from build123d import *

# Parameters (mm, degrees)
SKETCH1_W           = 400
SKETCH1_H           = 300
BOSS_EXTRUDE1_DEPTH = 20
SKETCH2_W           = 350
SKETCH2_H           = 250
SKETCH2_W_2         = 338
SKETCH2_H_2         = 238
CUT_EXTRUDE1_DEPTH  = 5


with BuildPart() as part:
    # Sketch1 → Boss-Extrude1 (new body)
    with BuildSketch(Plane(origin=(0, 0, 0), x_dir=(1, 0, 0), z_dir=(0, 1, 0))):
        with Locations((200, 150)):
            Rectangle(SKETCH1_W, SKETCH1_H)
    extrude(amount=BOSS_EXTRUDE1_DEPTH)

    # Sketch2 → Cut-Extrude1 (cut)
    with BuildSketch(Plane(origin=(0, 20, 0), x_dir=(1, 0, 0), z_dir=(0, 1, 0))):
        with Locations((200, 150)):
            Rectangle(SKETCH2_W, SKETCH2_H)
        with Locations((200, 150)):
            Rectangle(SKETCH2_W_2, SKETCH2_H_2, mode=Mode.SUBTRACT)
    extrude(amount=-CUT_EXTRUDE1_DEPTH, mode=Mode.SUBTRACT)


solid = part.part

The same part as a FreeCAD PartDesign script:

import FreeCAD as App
import Part
import Sketcher
Q = App.Units.Quantity


def add_polygon(sketch, points):
    """Adds a closed chain of lines whose ends are joined by coincident constraints."""
    first, n = sketch.GeometryCount, len(points)
    for a, b in zip(points, points[1:] + points[:1]):
        sketch.addGeometry(Part.LineSegment(App.Vector(*a, 0), App.Vector(*b, 0)), False)
    for i in range(n):
        sketch.addConstraint(Sketcher.Constraint("Coincident", first + i, 2, first + (i + 1) % n, 1))

doc = App.newDocument("Part")
body = doc.addObject("PartDesign::Body", "Body")

# Sketch on XZ plane
sketch1 = doc.addObject("Sketcher::SketchObject", "Sketch")
body.addObject(sketch1)
sketch1.AttachmentSupport = (doc.XZ_Plane, [""])
sketch1.MapMode = "FlatFace"
add_polygon(sketch1, [(0, -300), (0, 0), (400, 0), (400, -300)])  # lines 0-3
sketch1.addConstraint([
    Sketcher.Constraint("Vertical", 0),
    Sketcher.Constraint("Horizontal", 1),
    Sketcher.Constraint("Vertical", 2),
    Sketcher.Constraint("Horizontal", 3),
    Sketcher.Constraint("Coincident", 0, 2, -1, 1),
    Sketcher.Constraint("DistanceX", 1, 1, 1, 2, Q("400 mm")),
    Sketcher.Constraint("DistanceY", 0, 1, 0, 2, Q("300 mm")),
])
pad1 = doc.addObject("PartDesign::Pad", "Pad")
body.addObject(pad1)
pad1.Profile = sketch1
pad1.Length = 20
pad1.Reversed = True

# Sketch on XZ plane
sketch2 = doc.addObject("Sketcher::SketchObject", "Sketch001")
body.addObject(sketch2)
sketch2.AttachmentSupport = (doc.XZ_Plane, [""])
sketch2.MapMode = "FlatFace"
sketch2.AttachmentOffset = App.Placement(App.Vector(0, 0, -20), App.Rotation())
add_polygon(sketch2, [(25, -275), (25, -25), (375, -25), (375, -275)])  # lines 0-3
add_polygon(sketch2, [(369, -31), (31, -31), (31, -269), (369, -269)])  # lines 4-7
sketch2.addConstraint([
    Sketcher.Constraint("Vertical", 0),
    Sketcher.Constraint("Horizontal", 1),
    Sketcher.Constraint("Vertical", 2),
    Sketcher.Constraint("Horizontal", 3),
    Sketcher.Constraint("Horizontal", 4),
    Sketcher.Constraint("Vertical", 5),
    Sketcher.Constraint("Horizontal", 6),
    Sketcher.Constraint("Vertical", 7),
    Sketcher.Constraint("DistanceX", 1, 1, 1, 2, Q("350 mm")),
    Sketcher.Constraint("DistanceX", 4, 2, 4, 1, Q("338 mm")),
    Sketcher.Constraint("DistanceY", 0, 1, 0, 2, Q("250 mm")),
    Sketcher.Constraint("DistanceY", 5, 2, 5, 1, Q("238 mm")),
    Sketcher.Constraint("DistanceX", -1, 1, 0, 2, Q("25 mm")),
    Sketcher.Constraint("DistanceY", 0, 2, -1, 1, Q("25 mm")),
    Sketcher.Constraint("DistanceX", -1, 1, 4, 2, Q("31 mm")),
    Sketcher.Constraint("DistanceY", 4, 2, -1, 1, Q("31 mm")),
])
pocket1 = doc.addObject("PartDesign::Pocket", "Pocket")
body.addObject(pocket1)
pocket1.Profile = sketch2
pocket1.Length = 5
pocket1.Reversed = True

doc.recompute()
